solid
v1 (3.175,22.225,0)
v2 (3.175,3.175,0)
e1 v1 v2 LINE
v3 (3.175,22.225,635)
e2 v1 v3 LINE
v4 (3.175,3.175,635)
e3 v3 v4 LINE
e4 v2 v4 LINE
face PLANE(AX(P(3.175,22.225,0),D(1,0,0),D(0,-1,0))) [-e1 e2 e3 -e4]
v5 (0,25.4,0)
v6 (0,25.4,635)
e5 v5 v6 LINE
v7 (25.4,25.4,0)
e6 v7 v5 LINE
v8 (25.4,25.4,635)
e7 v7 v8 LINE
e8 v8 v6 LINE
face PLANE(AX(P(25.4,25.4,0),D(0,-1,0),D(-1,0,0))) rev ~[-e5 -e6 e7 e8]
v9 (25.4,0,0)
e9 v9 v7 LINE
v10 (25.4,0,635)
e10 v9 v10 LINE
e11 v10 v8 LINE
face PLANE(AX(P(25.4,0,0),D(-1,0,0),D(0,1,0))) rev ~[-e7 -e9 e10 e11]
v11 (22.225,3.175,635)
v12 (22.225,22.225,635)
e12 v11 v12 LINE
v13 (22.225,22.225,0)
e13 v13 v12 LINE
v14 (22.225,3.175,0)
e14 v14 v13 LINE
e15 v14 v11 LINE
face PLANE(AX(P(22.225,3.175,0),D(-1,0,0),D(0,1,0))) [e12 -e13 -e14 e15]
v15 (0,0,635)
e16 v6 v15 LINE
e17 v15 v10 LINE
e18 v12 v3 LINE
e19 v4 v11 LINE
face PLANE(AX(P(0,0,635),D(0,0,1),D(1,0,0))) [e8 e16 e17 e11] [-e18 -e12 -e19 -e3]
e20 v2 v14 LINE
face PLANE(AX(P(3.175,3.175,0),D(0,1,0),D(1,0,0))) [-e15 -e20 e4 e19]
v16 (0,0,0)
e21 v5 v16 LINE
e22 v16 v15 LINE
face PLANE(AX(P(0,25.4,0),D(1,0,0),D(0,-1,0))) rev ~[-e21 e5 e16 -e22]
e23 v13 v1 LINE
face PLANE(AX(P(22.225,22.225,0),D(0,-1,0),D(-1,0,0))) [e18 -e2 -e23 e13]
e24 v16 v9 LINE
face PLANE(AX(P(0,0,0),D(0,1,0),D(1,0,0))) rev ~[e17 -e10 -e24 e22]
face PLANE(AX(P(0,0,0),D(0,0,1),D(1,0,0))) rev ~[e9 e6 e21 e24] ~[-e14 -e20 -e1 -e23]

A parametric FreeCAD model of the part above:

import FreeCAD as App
import Part
import Sketcher

V = App.Vector
Q = App.Units.Quantity


def add_polygon(sketch, points):
    """Adds a closed chain of lines whose ends are joined by coincident constraints."""
    first, n = sketch.GeometryCount, len(points)
    for a, b in zip(points, points[1:] + points[:1]):
        sketch.addGeometry(Part.LineSegment(App.Vector(*a, 0), App.Vector(*b, 0)), False)
    for i in range(n):
        sketch.addConstraint(Sketcher.Constraint("Coincident", first + i, 2, first + (i + 1) % n, 1))

doc = App.newDocument("Part")
body = doc.addObject("PartDesign::Body", "Body")

# Sketch on XY plane
sketch1 = doc.addObject("Sketcher::SketchObject", "Sketch")
body.addObject(sketch1)
sketch1.AttachmentSupport = (doc.XY_Plane, [""])
sketch1.MapMode = "FlatFace"
add_polygon(sketch1, [(0, 25), (0, 0), (25, 0), (25, 25)])  # lines 0-3
add_polygon(sketch1, [(22, 3), (3, 3), (3, 22), (22, 22)])  # lines 4-7
sketch1.addConstraint([
    Sketcher.Constraint("Vertical", 0),
    Sketcher.Constraint("Horizontal", 1),
    Sketcher.Constraint("Vertical", 2),
    Sketcher.Constraint("Horizontal", 3),
    Sketcher.Constraint("Horizontal", 4),
    Sketcher.Constraint("Vertical", 5),
    Sketcher.Constraint("Horizontal", 6),
    Sketcher.Constraint("Vertical", 7),
    Sketcher.Constraint("Coincident", 0, 2, -1, 1),
    Sketcher.Constraint("Equal", 3, 0),
    Sketcher.Constraint("Equal", 6, 5),
    Sketcher.Constraint("DistanceX", 1, 1, 1, 2, Q("1 in")),
    Sketcher.Constraint("DistanceX", 4, 2, 4, 1, Q("0.75 in")),
    Sketcher.Constraint("DistanceX", -1, 1, 4, 2, Q("0.125 in")),
    Sketcher.Constraint("DistanceY", -1, 1, 4, 2, Q("0.125 in")),
])
pad1 = doc.addObject("PartDesign::Pad", "Pad")
body.addObject(pad1)
pad1.Profile = sketch1
pad1.Length = Q("25 in")

doc.recompute()
